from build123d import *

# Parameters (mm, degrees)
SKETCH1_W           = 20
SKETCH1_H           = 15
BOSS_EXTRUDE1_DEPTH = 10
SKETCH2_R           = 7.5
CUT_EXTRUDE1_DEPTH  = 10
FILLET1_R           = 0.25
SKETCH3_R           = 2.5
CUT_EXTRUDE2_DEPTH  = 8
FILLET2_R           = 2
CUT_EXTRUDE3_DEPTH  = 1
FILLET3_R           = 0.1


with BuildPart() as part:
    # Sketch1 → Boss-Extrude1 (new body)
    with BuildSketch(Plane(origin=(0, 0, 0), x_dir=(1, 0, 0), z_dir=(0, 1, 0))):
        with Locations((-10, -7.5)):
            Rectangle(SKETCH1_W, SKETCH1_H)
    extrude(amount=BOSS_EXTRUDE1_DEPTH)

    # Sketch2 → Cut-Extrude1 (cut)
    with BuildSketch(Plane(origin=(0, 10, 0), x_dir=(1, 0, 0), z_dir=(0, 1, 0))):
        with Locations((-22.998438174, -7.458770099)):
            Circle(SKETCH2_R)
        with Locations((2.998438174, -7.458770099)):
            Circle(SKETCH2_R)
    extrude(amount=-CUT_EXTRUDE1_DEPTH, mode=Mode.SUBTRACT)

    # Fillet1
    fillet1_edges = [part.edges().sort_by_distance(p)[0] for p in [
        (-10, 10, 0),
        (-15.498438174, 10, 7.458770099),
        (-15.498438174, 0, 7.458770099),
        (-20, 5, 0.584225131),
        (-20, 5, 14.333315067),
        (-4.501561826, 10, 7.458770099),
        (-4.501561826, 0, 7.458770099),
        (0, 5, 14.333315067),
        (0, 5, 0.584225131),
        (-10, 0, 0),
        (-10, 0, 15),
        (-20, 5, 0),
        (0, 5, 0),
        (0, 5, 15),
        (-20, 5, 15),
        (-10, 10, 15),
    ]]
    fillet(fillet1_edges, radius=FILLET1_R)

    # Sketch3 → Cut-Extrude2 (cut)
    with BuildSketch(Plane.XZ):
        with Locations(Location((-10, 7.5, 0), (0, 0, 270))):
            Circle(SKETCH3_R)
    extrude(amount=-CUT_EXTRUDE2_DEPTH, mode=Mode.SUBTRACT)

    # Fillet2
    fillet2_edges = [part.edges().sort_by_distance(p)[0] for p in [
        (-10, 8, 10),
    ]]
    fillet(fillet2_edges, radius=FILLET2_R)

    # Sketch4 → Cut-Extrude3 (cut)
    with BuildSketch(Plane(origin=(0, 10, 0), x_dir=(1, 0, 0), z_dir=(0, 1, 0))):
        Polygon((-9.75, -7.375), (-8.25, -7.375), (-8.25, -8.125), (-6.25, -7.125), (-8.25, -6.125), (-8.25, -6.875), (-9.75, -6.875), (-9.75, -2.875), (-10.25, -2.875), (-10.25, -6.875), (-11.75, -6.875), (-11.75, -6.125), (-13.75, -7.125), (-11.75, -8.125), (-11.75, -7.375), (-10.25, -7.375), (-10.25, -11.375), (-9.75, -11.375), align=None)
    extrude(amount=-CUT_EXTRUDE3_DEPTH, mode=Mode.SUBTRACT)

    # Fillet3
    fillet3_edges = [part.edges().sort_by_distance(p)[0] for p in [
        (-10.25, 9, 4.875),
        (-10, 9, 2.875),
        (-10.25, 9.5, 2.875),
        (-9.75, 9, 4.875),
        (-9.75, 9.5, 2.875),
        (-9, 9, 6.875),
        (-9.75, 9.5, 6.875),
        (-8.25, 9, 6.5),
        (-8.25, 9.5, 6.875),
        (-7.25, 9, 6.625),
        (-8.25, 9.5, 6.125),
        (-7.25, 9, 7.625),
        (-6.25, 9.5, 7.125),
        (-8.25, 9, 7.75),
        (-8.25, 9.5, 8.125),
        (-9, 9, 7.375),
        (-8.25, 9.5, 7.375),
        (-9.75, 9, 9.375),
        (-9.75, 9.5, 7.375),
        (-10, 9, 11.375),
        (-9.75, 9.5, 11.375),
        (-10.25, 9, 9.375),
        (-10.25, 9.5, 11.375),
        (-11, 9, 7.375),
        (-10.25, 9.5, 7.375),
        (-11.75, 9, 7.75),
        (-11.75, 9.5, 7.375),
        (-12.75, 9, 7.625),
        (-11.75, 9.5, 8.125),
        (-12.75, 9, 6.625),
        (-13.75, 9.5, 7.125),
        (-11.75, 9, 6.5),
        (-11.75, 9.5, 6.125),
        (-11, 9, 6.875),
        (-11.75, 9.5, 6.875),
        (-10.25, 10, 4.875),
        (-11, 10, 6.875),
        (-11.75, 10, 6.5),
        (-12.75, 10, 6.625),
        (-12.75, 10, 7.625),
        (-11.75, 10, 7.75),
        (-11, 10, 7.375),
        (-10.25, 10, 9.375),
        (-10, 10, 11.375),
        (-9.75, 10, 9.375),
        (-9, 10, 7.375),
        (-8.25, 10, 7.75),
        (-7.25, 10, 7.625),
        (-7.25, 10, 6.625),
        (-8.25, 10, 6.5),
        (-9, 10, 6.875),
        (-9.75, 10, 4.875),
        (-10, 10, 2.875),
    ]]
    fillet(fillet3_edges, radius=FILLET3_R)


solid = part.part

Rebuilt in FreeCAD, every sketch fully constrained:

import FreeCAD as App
import Part
import Sketcher
from FreeCAD import Vector


def edges_at(feature, points):
    """Names of the edges that pass closest to the given points."""
    edges = feature.Shape.Edges
    near = lambda p: min(range(len(edges)), key=lambda i: edges[i].distToShape(Part.Vertex(*p))[0])
    return sorted({f"Edge{near(p) + 1}" for p in points})

doc = App.newDocument("Part")
params = doc.addObject("Spreadsheet::Sheet", "Params")
for row, (alias, value) in enumerate([
    ("sketch1_width", "20 mm"),
    ("sketch1_height", "15 mm"),
    ("pad1_length", "10 mm"),
    ("sketch2_diameter", "15 mm"),
    ("pocket1_length", "10 mm"),
    ("fillet_radius", "0.25 mm"),
    ("sketch3_diameter", "5 mm"),
    ("pocket2_length", "8 mm"),
    ("fillet2_radius", "2 mm"),
    ("sketch4_height", "4 mm"),
    ("sketch4_width", "1.5 mm"),
    ("sketch4_width2", "0.5 mm"),
    ("sketch4_height2", "0.75 mm"),
    ("pocket3_length", "1 mm"),
    ("fillet3_radius", "0.1 mm"),
], start=1):
    params.set(f"A{row}", alias)
    params.set(f"B{row}", "=" + value)
    params.setAlias(f"B{row}", alias)

body = doc.addObject("PartDesign::Body", "Body")

# Sketch on XZ plane
sketch1 = doc.addObject("Sketcher::SketchObject", "Sketch")
body.addObject(sketch1)
sketch1.AttachmentSupport = (doc.XZ_Plane, [""])
sketch1.MapMode = "FlatFace"
sketch1.addGeometry([
    Part.LineSegment(Vector(-20, 0, 0), Vector(-20, 15, 0)),
    Part.LineSegment(Vector(-20, 15, 0), Vector(0, 15, 0)),
    Part.LineSegment(Vector(0, 15, 0), Vector(0, 0, 0)),
    Part.LineSegment(Vector(0, 0, 0), Vector(-20, 0, 0)),
], False)
sketch1.addConstraint([
    Sketcher.Constraint("Coincident", 0, 2, 1, 1),
    Sketcher.Constraint("Coincident", 1, 2, 2, 1),
    Sketcher.Constraint("Coincident", 2, 2, 3, 1),
    Sketcher.Constraint("Coincident", 3, 2, 0, 1),
    Sketcher.Constraint("Vertical", 0),
    Sketcher.Constraint("Horizontal", 1),
    Sketcher.Constraint("Vertical", 2),
    Sketcher.Constraint("Horizontal", 3),
    Sketcher.Constraint("Coincident", 2, 2, -1, 1),
    Sketcher.Constraint("DistanceX", 1, 1, 1, 2, 20.0),
    Sketcher.Constraint("DistanceY", 0, 1, 0, 2, 15.0),
])
sketch1.setExpression("Constraints[9]", "Params.sketch1_width")
sketch1.setExpression("Constraints[10]", "Params.sketch1_height")
pad1 = doc.addObject("PartDesign::Pad", "Pad")
body.addObject(pad1)
pad1.Profile = sketch1
pad1.setExpression("Length", "Params.pad1_length")
pad1.Reversed = True

# Sketch on XZ plane
sketch2 = doc.addObject("Sketcher::SketchObject", "Sketch001")
body.addObject(sketch2)
sketch2.AttachmentSupport = (doc.XZ_Plane, [""])
sketch2.MapMode = "FlatFace"
sketch2.AttachmentOffset = App.Placement(Vector(0, 0, -10), App.Rotation())
sketch2.addGeometry([
    Part.Circle(Vector(-22.998438, 7.45877, 0), Vector(0, 0, 1), 7.5),
    Part.Circle(Vector(2.998438, 7.45877, 0), Vector(0, 0, 1), 7.5),
], False)
sketch2.addConstraint([
    Sketcher.Constraint("Equal", 0, 1),
    Sketcher.Constraint("Horizontal", 0, 3, 1, 3),
    Sketcher.Constraint("Diameter", 0, 15.0),
    Sketcher.Constraint("DistanceX", 0, 3, -1, 1, 22.998438),
    Sketcher.Constraint("DistanceY", -1, 1, 0, 3, 7.45877),
    Sketcher.Constraint("DistanceX", -1, 1, 1, 3, 2.998438),
])
sketch2.setExpression("Constraints[2]", "Params.sketch2_diameter")
pocket1 = doc.addObject("PartDesign::Pocket", "Pocket")
body.addObject(pocket1)
pocket1.Profile = sketch2
pocket1.setExpression("Length", "Params.pocket1_length")
pocket1.Reversed = True
doc.recompute()

fillet = doc.addObject("PartDesign::Fillet", "Fillet")
body.addObject(fillet)
fillet.Base = (pocket1, edges_at(pocket1, [
    (-10, 10, 0),
    (-15.498, 10, 7.459),
    (-15.498, 0, 7.459),
    (-20, 5, 0.584),
    (-20, 5, 14.333),
    (-4.502, 10, 7.459),
    (-4.502, 0, 7.459),
    (0, 5, 14.333),
    (0, 5, 0.584),
    (-10, 0, 0),
    (-10, 0, 15),
    (-20, 5, 0),
    (0, 5, 0),
    (0, 5, 15),
    (-20, 5, 15),
    (-10, 10, 15),
]))
fillet.setExpression("Radius", "Params.fillet_radius")

# Sketch on XZ plane
sketch3 = doc.addObject("Sketcher::SketchObject", "Sketch002")
body.addObject(sketch3)
sketch3.AttachmentSupport = (doc.XZ_Plane, [""])
sketch3.MapMode = "FlatFace"
sketch3.addGeometry(Part.Circle(Vector(-10, 7.5, 0), Vector(0, 0, 1), 2.5), False)
sketch3.addConstraint([
    Sketcher.Constraint("Diameter", 0, 5.0),
    Sketcher.Constraint("DistanceX", 0, 3, -1, 1, 10.0),
    Sketcher.Constraint("DistanceY", -1, 1, 0, 3, 7.5),
])
sketch3.setExpression("Constraints[0]", "Params.sketch3_diameter")
pocket2 = doc.addObject("PartDesign::Pocket", "Pocket001")
body.addObject(pocket2)
pocket2.Profile = sketch3
pocket2.setExpression("Length", "Params.pocket2_length")
doc.recompute()

fillet2 = doc.addObject("PartDesign::Fillet", "Fillet001")
body.addObject(fillet2)
fillet2.Base = (pocket2, edges_at(pocket2, [(-10, 8, 10)]))
fillet2.setExpression("Radius", "Params.fillet2_radius")

# Sketch on XZ plane
sketch4 = doc.addObject("Sketcher::SketchObject", "Sketch003")
body.addObject(sketch4)
sketch4.AttachmentSupport = (doc.XZ_Plane, [""])
sketch4.MapMode = "FlatFace"
sketch4.AttachmentOffset = App.Placement(Vector(0, 0, -10), App.Rotation())
sketch4.addGeometry([
    Part.LineSegment(Vector(-9.75, 7.375, 0), Vector(-8.25, 7.375, 0)),  # 0
    Part.LineSegment(Vector(-8.25, 7.375, 0), Vector(-8.25, 8.125, 0)),  # 1
    Part.LineSegment(Vector(-8.25, 8.125, 0), Vector(-6.25, 7.125, 0)),  # 2
    Part.LineSegment(Vector(-6.25, 7.125, 0), Vector(-8.25, 6.125, 0)),  # 3
    Part.LineSegment(Vector(-8.25, 6.125, 0), Vector(-8.25, 6.875, 0)),  # 4
    Part.LineSegment(Vector(-8.25, 6.875, 0), Vector(-9.75, 6.875, 0)),  # 5
    Part.LineSegment(Vector(-9.75, 6.875, 0), Vector(-9.75, 2.875, 0)),  # 6
    Part.LineSegment(Vector(-9.75, 2.875, 0), Vector(-10.25, 2.875, 0)),  # 7
    Part.LineSegment(Vector(-10.25, 2.875, 0), Vector(-10.25, 6.875, 0)),  # 8
    Part.LineSegment(Vector(-10.25, 6.875, 0), Vector(-11.75, 6.875, 0)),  # 9
    Part.LineSegment(Vector(-11.75, 6.875, 0), Vector(-11.75, 6.125, 0)),  # 10
    Part.LineSegment(Vector(-11.75, 6.125, 0), Vector(-13.75, 7.125, 0)),  # 11
    Part.LineSegment(Vector(-13.75, 7.125, 0), Vector(-11.75, 8.125, 0)),  # 12
    Part.LineSegment(Vector(-11.75, 8.125, 0), Vector(-11.75, 7.375, 0)),  # 13
    Part.LineSegment(Vector(-11.75, 7.375, 0), Vector(-10.25, 7.375, 0)),  # 14
    Part.LineSegment(Vector(-10.25, 7.375, 0), Vector(-10.25, 11.375, 0)),  # 15
    Part.LineSegment(Vector(-10.25, 11.375, 0), Vector(-9.75, 11.375, 0)),  # 16
    Part.LineSegment(Vector(-9.75, 11.375, 0), Vector(-9.75, 7.375, 0)),  # 17
], False)
sketch4.addConstraint([
    Sketcher.Constraint("Coincident", 0, 2, 1, 1),
    Sketcher.Constraint("Coincident", 1, 2, 2, 1),
    Sketcher.Constraint("Coincident", 2, 2, 3, 1),
    Sketcher.Constraint("Coincident", 3, 2, 4, 1),
    Sketcher.Constraint("Coincident", 4, 2, 5, 1),
    Sketcher.Constraint("Coincident", 5, 2, 6, 1),
    Sketcher.Constraint("Coincident", 6, 2, 7, 1),
    Sketcher.Constraint("Coincident", 7, 2, 8, 1),
    Sketcher.Constraint("Coincident", 8, 2, 9, 1),
    Sketcher.Constraint("Coincident", 9, 2, 10, 1),
    Sketcher.Constraint("Coincident", 10, 2, 11, 1),
    Sketcher.Constraint("Coincident", 11, 2, 12, 1),
    Sketcher.Constraint("Coincident", 12, 2, 13, 1),
    Sketcher.Constraint("Coincident", 13, 2, 14, 1),
    Sketcher.Constraint("Coincident", 14, 2, 15, 1),
    Sketcher.Constraint("Coincident", 15, 2, 16, 1),
    Sketcher.Constraint("Coincident", 16, 2, 17, 1),
    Sketcher.Constraint("Coincident", 17, 2, 0, 1),
    Sketcher.Constraint("Horizontal", 0),
    Sketcher.Constraint("Vertical", 1),
    Sketcher.Constraint("Vertical", 4),
    Sketcher.Constraint("Horizontal", 5),
    Sketcher.Constraint("Vertical", 6),
    Sketcher.Constraint("Horizontal", 7),
    Sketcher.Constraint("Vertical", 8),
    Sketcher.Constraint("Horizontal", 9),
    Sketcher.Constraint("Vertical", 10),
    Sketcher.Constraint("Vertical", 13),
    Sketcher.Constraint("Horizontal", 14),
    Sketcher.Constraint("Vertical", 15),
    Sketcher.Constraint("Horizontal", 16),
    Sketcher.Constraint("Vertical", 17),
    Sketcher.Constraint("Parallel", 2, 11),
    Sketcher.Constraint("Parallel", 3, 12),
    Sketcher.Constraint("Horizontal", 5, 2, 8, 2),
    Sketcher.Constraint("Horizontal", 3, 2, 10, 2),
    Sketcher.Constraint("Horizontal", 2, 2, 11, 2),
    Sketcher.Constraint("Horizontal", 1, 2, 12, 2),
    Sketcher.Constraint("Horizontal", 0, 2, 13, 2),
    Sketcher.Constraint("Vertical", 1, 2, 3, 2),
    Sketcher.Constraint("Vertical", 10, 2, 12, 2),
    Sketcher.Constraint("Vertical", 8, 2, 14, 2),
    Sketcher.Constraint("Vertical", 6, 2, 16, 2),
    Sketcher.Constraint("Equal", 5, 9),
    Sketcher.Constraint("Equal", 1, 4),
    Sketcher.Constraint("Equal", 8, 15),
    Sketcher.Constraint("DistanceY", 6, 2, 6, 1, 4.0),
    Sketcher.Constraint("DistanceX", 0, 1, 0, 2, 1.5),
    Sketcher.Constraint("DistanceX", 7, 2, 7, 1, 0.5),
    Sketcher.Constraint("DistanceX", 0, 2, 2, 2, 2.0),
    Sketcher.Constraint("DistanceY", 2, 2, 1, 2, 1.0),
    Sketcher.Constraint("DistanceY", 1, 1, 1, 2, 0.75),
    Sketcher.Constraint("DistanceX", 0, 2, -1, 1, 8.25),
    Sketcher.Constraint("DistanceY", -1, 1, 0, 2, 7.375),
])
sketch4.setExpression("Constraints[46]", "Params.sketch4_height")
sketch4.setExpression("Constraints[47]", "Params.sketch4_width")
sketch4.setExpression("Constraints[48]", "Params.sketch4_width2")
sketch4.setExpression("Constraints[51]", "Params.sketch4_height2")
pocket3 = doc.addObject("PartDesign::Pocket", "Pocket002")
body.addObject(pocket3)
pocket3.Profile = sketch4
pocket3.setExpression("Length", "Params.pocket3_length")
pocket3.Reversed = True
doc.recompute()

fillet3 = doc.addObject("PartDesign::Fillet", "Fillet002")
body.addObject(fillet3)
fillet3.Base = (pocket3, edges_at(pocket3, [
    (-10.25, 9, 4.875),
    (-10, 9, 2.875),
    (-10.25, 9.5, 2.875),
    (-9.75, 9, 4.875),
    (-9.75, 9.5, 2.875),
    (-9, 9, 6.875),
    (-9.75, 9.5, 6.875),
    (-8.25, 9, 6.5),
    (-8.25, 9.5, 6.875),
    (-7.25, 9, 6.625),
    (-8.25, 9.5, 6.125),
    (-7.25, 9, 7.625),
    (-6.25, 9.5, 7.125),
    (-8.25, 9, 7.75),
    (-8.25, 9.5, 8.125),
    (-9, 9, 7.375),
    (-8.25, 9.5, 7.375),
    (-9.75, 9, 9.375),
    (-9.75, 9.5, 7.375),
    (-10, 9, 11.375),
    (-9.75, 9.5, 11.375),
    (-10.25, 9, 9.375),
    (-10.25, 9.5, 11.375),
    (-11, 9, 7.375),
    (-10.25, 9.5, 7.375),
    (-11.75, 9, 7.75),
    (-11.75, 9.5, 7.375),
    (-12.75, 9, 7.625),
    (-11.75, 9.5, 8.125),
    (-12.75, 9, 6.625),
    (-13.75, 9.5, 7.125),
    (-11.75, 9, 6.5),
    (-11.75, 9.5, 6.125),
    (-11, 9, 6.875),
    (-11.75, 9.5, 6.875),
    (-10.25, 10, 4.875),
    (-11, 10, 6.875),
    (-11.75, 10, 6.5),
    (-12.75, 10, 6.625),
    (-12.75, 10, 7.625),
    (-11.75, 10, 7.75),
    (-11, 10, 7.375),
    (-10.25, 10, 9.375),
    (-10, 10, 11.375),
    (-9.75, 10, 9.375),
    (-9, 10, 7.375),
    (-8.25, 10, 7.75),
    (-7.25, 10, 7.625),
    (-7.25, 10, 6.625),
    (-8.25, 10, 6.5),
    (-9, 10, 6.875),
    (-9.75, 10, 4.875),
    (-10, 10, 2.875),
]))
fillet3.setExpression("Radius", "Params.fillet3_radius")

doc.recompute()
